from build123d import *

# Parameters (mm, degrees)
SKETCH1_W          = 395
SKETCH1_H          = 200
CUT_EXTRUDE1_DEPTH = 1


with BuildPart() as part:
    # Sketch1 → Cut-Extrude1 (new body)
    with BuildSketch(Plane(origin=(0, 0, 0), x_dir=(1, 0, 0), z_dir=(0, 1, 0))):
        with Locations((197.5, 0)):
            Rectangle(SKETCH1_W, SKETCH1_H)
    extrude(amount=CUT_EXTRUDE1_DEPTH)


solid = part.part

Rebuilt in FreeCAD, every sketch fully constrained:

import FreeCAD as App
import Part
import Sketcher
Q = App.Units.Quantity


def add_polygon(sketch, points):
    """Adds a closed chain of lines whose ends are joined by coincident constraints."""
    first, n = sketch.GeometryCount, len(points)
    for a, b in zip(points, points[1:] + points[:1]):
        sketch.addGeometry(Part.LineSegment(App.Vector(*a, 0), App.Vector(*b, 0)), False)
    for i in range(n):
        sketch.addConstraint(Sketcher.Constraint("Coincident", first + i, 2, first + (i + 1) % n, 1))

doc = App.newDocument("Part")
body = doc.addObject("PartDesign::Body", "Body")

# Sketch on XZ plane
sketch1 = body.newObject("Sketcher::SketchObject", "Sketch")
sketch1.AttachmentSupport = (doc.getObject("XZ_Plane"), [""])
sketch1.MapMode = "FlatFace"
add_polygon(sketch1, [(0, -100), (0, 100), (395, 100), (395, -100)])  # lines 0-3
sketch1.addConstraint([
    Sketcher.Constraint("Vertical", 0),
    Sketcher.Constraint("Horizontal", 1),
    Sketcher.Constraint("Vertical", 2),
    Sketcher.Constraint("Horizontal", 3),
    Sketcher.Constraint("Symmetric", 0, 2, 3, 2, -1, 1),
    Sketcher.Constraint("DistanceX", 1, 1, 1, 2, Q("395 mm")),
    Sketcher.Constraint("DistanceY", 0, 1, 0, 2, Q("200 mm")),
])
pad1 = body.newObject("PartDesign::Pad", "Pad")
pad1.Profile = sketch1
pad1.Length = 1
pad1.Reversed = True

doc.recompute()
